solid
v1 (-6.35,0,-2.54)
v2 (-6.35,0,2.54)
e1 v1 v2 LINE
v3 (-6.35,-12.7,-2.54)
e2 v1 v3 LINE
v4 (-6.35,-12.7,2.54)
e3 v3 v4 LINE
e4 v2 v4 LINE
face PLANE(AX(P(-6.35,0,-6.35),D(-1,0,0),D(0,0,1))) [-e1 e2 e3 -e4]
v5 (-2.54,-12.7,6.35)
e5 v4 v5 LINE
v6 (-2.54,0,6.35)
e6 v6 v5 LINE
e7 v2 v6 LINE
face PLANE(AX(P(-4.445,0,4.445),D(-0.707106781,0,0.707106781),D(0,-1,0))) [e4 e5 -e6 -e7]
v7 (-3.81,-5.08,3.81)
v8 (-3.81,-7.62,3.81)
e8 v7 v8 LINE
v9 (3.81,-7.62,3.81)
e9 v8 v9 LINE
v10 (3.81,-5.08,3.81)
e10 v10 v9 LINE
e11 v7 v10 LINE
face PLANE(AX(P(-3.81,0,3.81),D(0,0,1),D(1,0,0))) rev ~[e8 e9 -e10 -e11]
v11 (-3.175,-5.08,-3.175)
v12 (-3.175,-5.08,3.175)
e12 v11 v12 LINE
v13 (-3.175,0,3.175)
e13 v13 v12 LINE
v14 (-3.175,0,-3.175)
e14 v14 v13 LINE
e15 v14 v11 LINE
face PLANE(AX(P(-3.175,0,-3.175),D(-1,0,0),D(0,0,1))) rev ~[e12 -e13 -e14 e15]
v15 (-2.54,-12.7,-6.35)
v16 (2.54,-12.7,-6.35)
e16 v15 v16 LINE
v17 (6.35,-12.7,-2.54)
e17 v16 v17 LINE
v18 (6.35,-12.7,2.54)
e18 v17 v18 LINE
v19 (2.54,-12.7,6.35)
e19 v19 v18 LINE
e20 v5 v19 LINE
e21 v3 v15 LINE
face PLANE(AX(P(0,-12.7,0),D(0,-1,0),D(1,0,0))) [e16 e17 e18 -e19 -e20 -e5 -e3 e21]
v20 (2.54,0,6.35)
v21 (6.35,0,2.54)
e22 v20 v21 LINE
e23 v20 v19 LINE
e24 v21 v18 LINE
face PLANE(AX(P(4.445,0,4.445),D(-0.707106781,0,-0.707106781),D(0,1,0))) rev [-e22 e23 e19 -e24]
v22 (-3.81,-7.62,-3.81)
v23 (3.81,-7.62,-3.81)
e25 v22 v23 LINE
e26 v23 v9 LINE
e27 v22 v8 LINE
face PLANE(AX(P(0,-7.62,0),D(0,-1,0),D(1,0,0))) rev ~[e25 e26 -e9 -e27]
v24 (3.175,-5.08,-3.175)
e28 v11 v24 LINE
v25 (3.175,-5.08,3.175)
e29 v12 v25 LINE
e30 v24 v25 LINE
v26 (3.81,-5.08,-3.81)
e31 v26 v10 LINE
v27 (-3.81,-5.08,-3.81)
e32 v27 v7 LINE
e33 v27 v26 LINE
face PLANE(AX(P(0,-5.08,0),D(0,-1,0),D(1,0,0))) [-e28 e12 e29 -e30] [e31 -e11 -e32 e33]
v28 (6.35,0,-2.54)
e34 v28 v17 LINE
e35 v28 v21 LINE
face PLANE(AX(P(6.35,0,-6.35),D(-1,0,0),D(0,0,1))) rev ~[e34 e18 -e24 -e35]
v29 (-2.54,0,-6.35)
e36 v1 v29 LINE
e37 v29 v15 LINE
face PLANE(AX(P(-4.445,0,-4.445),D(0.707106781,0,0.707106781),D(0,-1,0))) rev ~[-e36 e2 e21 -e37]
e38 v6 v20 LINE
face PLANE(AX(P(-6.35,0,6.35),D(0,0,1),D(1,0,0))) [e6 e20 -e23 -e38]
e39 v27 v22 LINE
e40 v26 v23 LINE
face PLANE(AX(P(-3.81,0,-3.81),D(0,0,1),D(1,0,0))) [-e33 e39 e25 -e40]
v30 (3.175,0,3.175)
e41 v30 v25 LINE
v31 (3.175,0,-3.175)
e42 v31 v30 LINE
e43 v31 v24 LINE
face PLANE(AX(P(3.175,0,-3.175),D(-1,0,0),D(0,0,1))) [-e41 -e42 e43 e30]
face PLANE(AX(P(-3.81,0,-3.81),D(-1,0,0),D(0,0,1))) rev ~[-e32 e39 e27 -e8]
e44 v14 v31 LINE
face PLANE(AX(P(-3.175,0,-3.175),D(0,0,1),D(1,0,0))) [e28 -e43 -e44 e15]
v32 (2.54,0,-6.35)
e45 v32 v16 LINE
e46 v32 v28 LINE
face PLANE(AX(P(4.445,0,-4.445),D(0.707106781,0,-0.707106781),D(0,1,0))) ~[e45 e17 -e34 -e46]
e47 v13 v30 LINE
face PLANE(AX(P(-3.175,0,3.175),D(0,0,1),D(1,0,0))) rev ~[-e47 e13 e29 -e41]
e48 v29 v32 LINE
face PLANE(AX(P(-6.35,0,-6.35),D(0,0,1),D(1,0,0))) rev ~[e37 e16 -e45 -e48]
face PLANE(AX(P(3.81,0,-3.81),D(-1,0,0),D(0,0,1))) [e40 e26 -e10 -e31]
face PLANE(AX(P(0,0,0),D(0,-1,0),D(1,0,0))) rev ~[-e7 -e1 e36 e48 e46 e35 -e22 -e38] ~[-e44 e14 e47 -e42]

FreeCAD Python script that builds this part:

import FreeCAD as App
import Part
import Sketcher

V = App.Vector
Q = App.Units.Quantity


def edges_at(feature, points):
    """Names of the edges that pass closest to the given points."""
    edges = feature.Shape.Edges
    near = lambda p: min(range(len(edges)), key=lambda i: edges[i].distToShape(Part.Vertex(*p))[0])
    return sorted({f"Edge{near(p) + 1}" for p in points})

doc = App.newDocument("Part")
body = doc.addObject("PartDesign::Body", "Body")

# Sketch on XZ plane
sketch1 = doc.addObject("Sketcher::SketchObject", "Sketch")
body.addObject(sketch1)
sketch1.AttachmentSupport = (doc.XZ_Plane, [""])
sketch1.MapMode = "FlatFace"
sketch1.addGeometry(Part.LineSegment(V(-6, 6, 0), V(-6, -6, 0)), False)
sketch1.addGeometry(Part.LineSegment(V(-6, -6, 0), V(6, -6, 0)), False)
sketch1.addGeometry(Part.LineSegment(V(6, -6, 0), V(6, 6, 0)), False)
sketch1.addGeometry(Part.LineSegment(V(6, 6, 0), V(-6, 6, 0)), False)
sketch1.addConstraint(Sketcher.Constraint("Coincident", 0, 2, 1, 1))
sketch1.addConstraint(Sketcher.Constraint("Coincident", 1, 2, 2, 1))
sketch1.addConstraint(Sketcher.Constraint("Coincident", 2, 2, 3, 1))
sketch1.addConstraint(Sketcher.Constraint("Coincident", 3, 2, 0, 1))
sketch1.addConstraint(Sketcher.Constraint("Vertical", 0))
sketch1.addConstraint(Sketcher.Constraint("Horizontal", 1))
sketch1.addConstraint(Sketcher.Constraint("Vertical", 2))
sketch1.addConstraint(Sketcher.Constraint("Horizontal", 3))
sketch1.addConstraint(Sketcher.Constraint("Symmetric", 0, 2, 2, 2, -1, 1))
sketch1.addConstraint(Sketcher.Constraint("Equal", 3, 0))
sketch1.addConstraint(Sketcher.Constraint("DistanceX", 1, 1, 1, 2, Q("0.5 in")))
pad1 = doc.addObject("PartDesign::Pad", "Pad")
body.addObject(pad1)
pad1.Profile = sketch1
pad1.Length = Q("0.5 in")

# Sketch on XZ plane
sketch2 = doc.addObject("Sketcher::SketchObject", "Sketch001")
body.addObject(sketch2)
sketch2.AttachmentSupport = (doc.XZ_Plane, [""])
sketch2.MapMode = "FlatFace"
sketch2.addGeometry(Part.LineSegment(V(-3, 3, 0), V(-3, -3, 0)), False)
sketch2.addGeometry(Part.LineSegment(V(-3, -3, 0), V(3, -3, 0)), False)
sketch2.addGeometry(Part.LineSegment(V(3, -3, 0), V(3, 3, 0)), False)
sketch2.addGeometry(Part.LineSegment(V(3, 3, 0), V(-3, 3, 0)), False)
sketch2.addConstraint(Sketcher.Constraint("Coincident", 0, 2, 1, 1))
sketch2.addConstraint(Sketcher.Constraint("Coincident", 1, 2, 2, 1))
sketch2.addConstraint(Sketcher.Constraint("Coincident", 2, 2, 3, 1))
sketch2.addConstraint(Sketcher.Constraint("Coincident", 3, 2, 0, 1))
sketch2.addConstraint(Sketcher.Constraint("Vertical", 0))
sketch2.addConstraint(Sketcher.Constraint("Horizontal", 1))
sketch2.addConstraint(Sketcher.Constraint("Vertical", 2))
sketch2.addConstraint(Sketcher.Constraint("Horizontal", 3))
sketch2.addConstraint(Sketcher.Constraint("Symmetric", 0, 2, 2, 2, -1, 1))
sketch2.addConstraint(Sketcher.Constraint("Equal", 3, 0))
sketch2.addConstraint(Sketcher.Constraint("DistanceX", 1, 1, 1, 2, Q("0.25 in")))
pocket1 = doc.addObject("PartDesign::Pocket", "Pocket")
body.addObject(pocket1)
pocket1.Profile = sketch2
pocket1.Length = Q("0.3 in")
pocket1.Reversed = True

# Sketch on XZ plane
sketch3 = doc.addObject("Sketcher::SketchObject", "Sketch002")
body.addObject(sketch3)
sketch3.AttachmentSupport = (doc.XZ_Plane, [""])
sketch3.MapMode = "FlatFace"
sketch3.addGeometry(Part.LineSegment(V(-4, 4, 0), V(-4, -4, 0)), False)
sketch3.addGeometry(Part.LineSegment(V(-4, -4, 0), V(4, -4, 0)), False)
sketch3.addGeometry(Part.LineSegment(V(4, -4, 0), V(4, 4, 0)), False)
sketch3.addGeometry(Part.LineSegment(V(4, 4, 0), V(-4, 4, 0)), False)
sketch3.addGeometry(Part.LineSegment(V(3, -3, 0), V(-3, -3, 0)), False)
sketch3.addGeometry(Part.LineSegment(V(-3, -3, 0), V(-3, 3, 0)), False)
sketch3.addGeometry(Part.LineSegment(V(-3, 3, 0), V(3, 3, 0)), False)
sketch3.addGeometry(Part.LineSegment(V(3, 3, 0), V(3, -3, 0)), False)
sketch3.addConstraint(Sketcher.Constraint("Coincident", 0, 2, 1, 1))
sketch3.addConstraint(Sketcher.Constraint("Coincident", 1, 2, 2, 1))
sketch3.addConstraint(Sketcher.Constraint("Coincident", 2, 2, 3, 1))
sketch3.addConstraint(Sketcher.Constraint("Coincident", 3, 2, 0, 1))
sketch3.addConstraint(Sketcher.Constraint("Coincident", 4, 2, 5, 1))
sketch3.addConstraint(Sketcher.Constraint("Coincident", 5, 2, 6, 1))
sketch3.addConstraint(Sketcher.Constraint("Coincident", 6, 2, 7, 1))
sketch3.addConstraint(Sketcher.Constraint("Coincident", 7, 2, 4, 1))
sketch3.addConstraint(Sketcher.Constraint("Vertical", 0))
sketch3.addConstraint(Sketcher.Constraint("Horizontal", 1))
sketch3.addConstraint(Sketcher.Constraint("Vertical", 2))
sketch3.addConstraint(Sketcher.Constraint("Horizontal", 3))
sketch3.addConstraint(Sketcher.Constraint("Horizontal", 4))
sketch3.addConstraint(Sketcher.Constraint("Vertical", 5))
sketch3.addConstraint(Sketcher.Constraint("Horizontal", 6))
sketch3.addConstraint(Sketcher.Constraint("Vertical", 7))
sketch3.addConstraint(Sketcher.Constraint("Symmetric", 0, 2, 2, 2, -1, 1))
sketch3.addConstraint(Sketcher.Constraint("Symmetric", 4, 2, 6, 2, -1, 1))
sketch3.addConstraint(Sketcher.Constraint("Equal", 3, 0))
sketch3.addConstraint(Sketcher.Constraint("Equal", 6, 5))
sketch3.addConstraint(Sketcher.Constraint("DistanceX", 1, 1, 1, 2, Q("0.3 in")))
sketch3.addConstraint(Sketcher.Constraint("DistanceX", 4, 2, 4, 1, Q("0.25 in")))
pocket2 = doc.addObject("PartDesign::Pocket", "Pocket001")
body.addObject(pocket2)
pocket2.Profile = sketch3
pocket2.Length = Q("0.3 in")
pocket2.Reversed = True

# Sketch on XZ plane
sketch4 = doc.addObject("Sketcher::SketchObject", "Sketch003")
body.addObject(sketch4)
sketch4.AttachmentSupport = (doc.XZ_Plane, [""])
sketch4.MapMode = "FlatFace"
sketch4.addGeometry(Part.LineSegment(V(-4, 4, 0), V(-4, -4, 0)), False)
sketch4.addGeometry(Part.LineSegment(V(-4, -4, 0), V(4, -4, 0)), False)
sketch4.addGeometry(Part.LineSegment(V(4, -4, 0), V(4, 4, 0)), False)
sketch4.addGeometry(Part.LineSegment(V(4, 4, 0), V(-4, 4, 0)), False)
sketch4.addGeometry(Part.LineSegment(V(3, -3, 0), V(-3, -3, 0)), False)
sketch4.addGeometry(Part.LineSegment(V(-3, -3, 0), V(-3, 3, 0)), False)
sketch4.addGeometry(Part.LineSegment(V(-3, 3, 0), V(3, 3, 0)), False)
sketch4.addGeometry(Part.LineSegment(V(3, 3, 0), V(3, -3, 0)), False)
sketch4.addConstraint(Sketcher.Constraint("Coincident", 0, 2, 1, 1))
sketch4.addConstraint(Sketcher.Constraint("Coincident", 1, 2, 2, 1))
sketch4.addConstraint(Sketcher.Constraint("Coincident", 2, 2, 3, 1))
sketch4.addConstraint(Sketcher.Constraint("Coincident", 3, 2, 0, 1))
sketch4.addConstraint(Sketcher.Constraint("Coincident", 4, 2, 5, 1))
sketch4.addConstraint(Sketcher.Constraint("Coincident", 5, 2, 6, 1))
sketch4.addConstraint(Sketcher.Constraint("Coincident", 6, 2, 7, 1))
sketch4.addConstraint(Sketcher.Constraint("Coincident", 7, 2, 4, 1))
sketch4.addConstraint(Sketcher.Constraint("Vertical", 0))
sketch4.addConstraint(Sketcher.Constraint("Horizontal", 1))
sketch4.addConstraint(Sketcher.Constraint("Vertical", 2))
sketch4.addConstraint(Sketcher.Constraint("Horizontal", 3))
sketch4.addConstraint(Sketcher.Constraint("Horizontal", 4))
sketch4.addConstraint(Sketcher.Constraint("Vertical", 5))
sketch4.addConstraint(Sketcher.Constraint("Horizontal", 6))
sketch4.addConstraint(Sketcher.Constraint("Vertical", 7))
sketch4.addConstraint(Sketcher.Constraint("Symmetric", 0, 2, 2, 2, -1, 1))
sketch4.addConstraint(Sketcher.Constraint("Symmetric", 4, 2, 6, 2, -1, 1))
sketch4.addConstraint(Sketcher.Constraint("Equal", 3, 0))
sketch4.addConstraint(Sketcher.Constraint("Equal", 6, 5))
sketch4.addConstraint(Sketcher.Constraint("DistanceX", 1, 1, 1, 2, Q("0.3 in")))
sketch4.addConstraint(Sketcher.Constraint("DistanceX", 4, 2, 4, 1, Q("0.25 in")))
pad2 = doc.addObject("PartDesign::Pad", "Pad001")
body.addObject(pad2)
pad2.Profile = sketch4
pad2.Length = Q("0.2 in")
doc.recompute()

chamfer = doc.addObject("PartDesign::Chamfer", "Chamfer")
body.addObject(chamfer)
chamfer.Base = (pad2, edges_at(pad2, [
    (-6.35, -6.35, -6.35),
    (6.35, -6.35, -6.35),
    (6.35, -6.35, 6.35),
    (-6.35, -6.35, 6.35),
]))
chamfer.Size = Q("0.15 in")

doc.recompute()
